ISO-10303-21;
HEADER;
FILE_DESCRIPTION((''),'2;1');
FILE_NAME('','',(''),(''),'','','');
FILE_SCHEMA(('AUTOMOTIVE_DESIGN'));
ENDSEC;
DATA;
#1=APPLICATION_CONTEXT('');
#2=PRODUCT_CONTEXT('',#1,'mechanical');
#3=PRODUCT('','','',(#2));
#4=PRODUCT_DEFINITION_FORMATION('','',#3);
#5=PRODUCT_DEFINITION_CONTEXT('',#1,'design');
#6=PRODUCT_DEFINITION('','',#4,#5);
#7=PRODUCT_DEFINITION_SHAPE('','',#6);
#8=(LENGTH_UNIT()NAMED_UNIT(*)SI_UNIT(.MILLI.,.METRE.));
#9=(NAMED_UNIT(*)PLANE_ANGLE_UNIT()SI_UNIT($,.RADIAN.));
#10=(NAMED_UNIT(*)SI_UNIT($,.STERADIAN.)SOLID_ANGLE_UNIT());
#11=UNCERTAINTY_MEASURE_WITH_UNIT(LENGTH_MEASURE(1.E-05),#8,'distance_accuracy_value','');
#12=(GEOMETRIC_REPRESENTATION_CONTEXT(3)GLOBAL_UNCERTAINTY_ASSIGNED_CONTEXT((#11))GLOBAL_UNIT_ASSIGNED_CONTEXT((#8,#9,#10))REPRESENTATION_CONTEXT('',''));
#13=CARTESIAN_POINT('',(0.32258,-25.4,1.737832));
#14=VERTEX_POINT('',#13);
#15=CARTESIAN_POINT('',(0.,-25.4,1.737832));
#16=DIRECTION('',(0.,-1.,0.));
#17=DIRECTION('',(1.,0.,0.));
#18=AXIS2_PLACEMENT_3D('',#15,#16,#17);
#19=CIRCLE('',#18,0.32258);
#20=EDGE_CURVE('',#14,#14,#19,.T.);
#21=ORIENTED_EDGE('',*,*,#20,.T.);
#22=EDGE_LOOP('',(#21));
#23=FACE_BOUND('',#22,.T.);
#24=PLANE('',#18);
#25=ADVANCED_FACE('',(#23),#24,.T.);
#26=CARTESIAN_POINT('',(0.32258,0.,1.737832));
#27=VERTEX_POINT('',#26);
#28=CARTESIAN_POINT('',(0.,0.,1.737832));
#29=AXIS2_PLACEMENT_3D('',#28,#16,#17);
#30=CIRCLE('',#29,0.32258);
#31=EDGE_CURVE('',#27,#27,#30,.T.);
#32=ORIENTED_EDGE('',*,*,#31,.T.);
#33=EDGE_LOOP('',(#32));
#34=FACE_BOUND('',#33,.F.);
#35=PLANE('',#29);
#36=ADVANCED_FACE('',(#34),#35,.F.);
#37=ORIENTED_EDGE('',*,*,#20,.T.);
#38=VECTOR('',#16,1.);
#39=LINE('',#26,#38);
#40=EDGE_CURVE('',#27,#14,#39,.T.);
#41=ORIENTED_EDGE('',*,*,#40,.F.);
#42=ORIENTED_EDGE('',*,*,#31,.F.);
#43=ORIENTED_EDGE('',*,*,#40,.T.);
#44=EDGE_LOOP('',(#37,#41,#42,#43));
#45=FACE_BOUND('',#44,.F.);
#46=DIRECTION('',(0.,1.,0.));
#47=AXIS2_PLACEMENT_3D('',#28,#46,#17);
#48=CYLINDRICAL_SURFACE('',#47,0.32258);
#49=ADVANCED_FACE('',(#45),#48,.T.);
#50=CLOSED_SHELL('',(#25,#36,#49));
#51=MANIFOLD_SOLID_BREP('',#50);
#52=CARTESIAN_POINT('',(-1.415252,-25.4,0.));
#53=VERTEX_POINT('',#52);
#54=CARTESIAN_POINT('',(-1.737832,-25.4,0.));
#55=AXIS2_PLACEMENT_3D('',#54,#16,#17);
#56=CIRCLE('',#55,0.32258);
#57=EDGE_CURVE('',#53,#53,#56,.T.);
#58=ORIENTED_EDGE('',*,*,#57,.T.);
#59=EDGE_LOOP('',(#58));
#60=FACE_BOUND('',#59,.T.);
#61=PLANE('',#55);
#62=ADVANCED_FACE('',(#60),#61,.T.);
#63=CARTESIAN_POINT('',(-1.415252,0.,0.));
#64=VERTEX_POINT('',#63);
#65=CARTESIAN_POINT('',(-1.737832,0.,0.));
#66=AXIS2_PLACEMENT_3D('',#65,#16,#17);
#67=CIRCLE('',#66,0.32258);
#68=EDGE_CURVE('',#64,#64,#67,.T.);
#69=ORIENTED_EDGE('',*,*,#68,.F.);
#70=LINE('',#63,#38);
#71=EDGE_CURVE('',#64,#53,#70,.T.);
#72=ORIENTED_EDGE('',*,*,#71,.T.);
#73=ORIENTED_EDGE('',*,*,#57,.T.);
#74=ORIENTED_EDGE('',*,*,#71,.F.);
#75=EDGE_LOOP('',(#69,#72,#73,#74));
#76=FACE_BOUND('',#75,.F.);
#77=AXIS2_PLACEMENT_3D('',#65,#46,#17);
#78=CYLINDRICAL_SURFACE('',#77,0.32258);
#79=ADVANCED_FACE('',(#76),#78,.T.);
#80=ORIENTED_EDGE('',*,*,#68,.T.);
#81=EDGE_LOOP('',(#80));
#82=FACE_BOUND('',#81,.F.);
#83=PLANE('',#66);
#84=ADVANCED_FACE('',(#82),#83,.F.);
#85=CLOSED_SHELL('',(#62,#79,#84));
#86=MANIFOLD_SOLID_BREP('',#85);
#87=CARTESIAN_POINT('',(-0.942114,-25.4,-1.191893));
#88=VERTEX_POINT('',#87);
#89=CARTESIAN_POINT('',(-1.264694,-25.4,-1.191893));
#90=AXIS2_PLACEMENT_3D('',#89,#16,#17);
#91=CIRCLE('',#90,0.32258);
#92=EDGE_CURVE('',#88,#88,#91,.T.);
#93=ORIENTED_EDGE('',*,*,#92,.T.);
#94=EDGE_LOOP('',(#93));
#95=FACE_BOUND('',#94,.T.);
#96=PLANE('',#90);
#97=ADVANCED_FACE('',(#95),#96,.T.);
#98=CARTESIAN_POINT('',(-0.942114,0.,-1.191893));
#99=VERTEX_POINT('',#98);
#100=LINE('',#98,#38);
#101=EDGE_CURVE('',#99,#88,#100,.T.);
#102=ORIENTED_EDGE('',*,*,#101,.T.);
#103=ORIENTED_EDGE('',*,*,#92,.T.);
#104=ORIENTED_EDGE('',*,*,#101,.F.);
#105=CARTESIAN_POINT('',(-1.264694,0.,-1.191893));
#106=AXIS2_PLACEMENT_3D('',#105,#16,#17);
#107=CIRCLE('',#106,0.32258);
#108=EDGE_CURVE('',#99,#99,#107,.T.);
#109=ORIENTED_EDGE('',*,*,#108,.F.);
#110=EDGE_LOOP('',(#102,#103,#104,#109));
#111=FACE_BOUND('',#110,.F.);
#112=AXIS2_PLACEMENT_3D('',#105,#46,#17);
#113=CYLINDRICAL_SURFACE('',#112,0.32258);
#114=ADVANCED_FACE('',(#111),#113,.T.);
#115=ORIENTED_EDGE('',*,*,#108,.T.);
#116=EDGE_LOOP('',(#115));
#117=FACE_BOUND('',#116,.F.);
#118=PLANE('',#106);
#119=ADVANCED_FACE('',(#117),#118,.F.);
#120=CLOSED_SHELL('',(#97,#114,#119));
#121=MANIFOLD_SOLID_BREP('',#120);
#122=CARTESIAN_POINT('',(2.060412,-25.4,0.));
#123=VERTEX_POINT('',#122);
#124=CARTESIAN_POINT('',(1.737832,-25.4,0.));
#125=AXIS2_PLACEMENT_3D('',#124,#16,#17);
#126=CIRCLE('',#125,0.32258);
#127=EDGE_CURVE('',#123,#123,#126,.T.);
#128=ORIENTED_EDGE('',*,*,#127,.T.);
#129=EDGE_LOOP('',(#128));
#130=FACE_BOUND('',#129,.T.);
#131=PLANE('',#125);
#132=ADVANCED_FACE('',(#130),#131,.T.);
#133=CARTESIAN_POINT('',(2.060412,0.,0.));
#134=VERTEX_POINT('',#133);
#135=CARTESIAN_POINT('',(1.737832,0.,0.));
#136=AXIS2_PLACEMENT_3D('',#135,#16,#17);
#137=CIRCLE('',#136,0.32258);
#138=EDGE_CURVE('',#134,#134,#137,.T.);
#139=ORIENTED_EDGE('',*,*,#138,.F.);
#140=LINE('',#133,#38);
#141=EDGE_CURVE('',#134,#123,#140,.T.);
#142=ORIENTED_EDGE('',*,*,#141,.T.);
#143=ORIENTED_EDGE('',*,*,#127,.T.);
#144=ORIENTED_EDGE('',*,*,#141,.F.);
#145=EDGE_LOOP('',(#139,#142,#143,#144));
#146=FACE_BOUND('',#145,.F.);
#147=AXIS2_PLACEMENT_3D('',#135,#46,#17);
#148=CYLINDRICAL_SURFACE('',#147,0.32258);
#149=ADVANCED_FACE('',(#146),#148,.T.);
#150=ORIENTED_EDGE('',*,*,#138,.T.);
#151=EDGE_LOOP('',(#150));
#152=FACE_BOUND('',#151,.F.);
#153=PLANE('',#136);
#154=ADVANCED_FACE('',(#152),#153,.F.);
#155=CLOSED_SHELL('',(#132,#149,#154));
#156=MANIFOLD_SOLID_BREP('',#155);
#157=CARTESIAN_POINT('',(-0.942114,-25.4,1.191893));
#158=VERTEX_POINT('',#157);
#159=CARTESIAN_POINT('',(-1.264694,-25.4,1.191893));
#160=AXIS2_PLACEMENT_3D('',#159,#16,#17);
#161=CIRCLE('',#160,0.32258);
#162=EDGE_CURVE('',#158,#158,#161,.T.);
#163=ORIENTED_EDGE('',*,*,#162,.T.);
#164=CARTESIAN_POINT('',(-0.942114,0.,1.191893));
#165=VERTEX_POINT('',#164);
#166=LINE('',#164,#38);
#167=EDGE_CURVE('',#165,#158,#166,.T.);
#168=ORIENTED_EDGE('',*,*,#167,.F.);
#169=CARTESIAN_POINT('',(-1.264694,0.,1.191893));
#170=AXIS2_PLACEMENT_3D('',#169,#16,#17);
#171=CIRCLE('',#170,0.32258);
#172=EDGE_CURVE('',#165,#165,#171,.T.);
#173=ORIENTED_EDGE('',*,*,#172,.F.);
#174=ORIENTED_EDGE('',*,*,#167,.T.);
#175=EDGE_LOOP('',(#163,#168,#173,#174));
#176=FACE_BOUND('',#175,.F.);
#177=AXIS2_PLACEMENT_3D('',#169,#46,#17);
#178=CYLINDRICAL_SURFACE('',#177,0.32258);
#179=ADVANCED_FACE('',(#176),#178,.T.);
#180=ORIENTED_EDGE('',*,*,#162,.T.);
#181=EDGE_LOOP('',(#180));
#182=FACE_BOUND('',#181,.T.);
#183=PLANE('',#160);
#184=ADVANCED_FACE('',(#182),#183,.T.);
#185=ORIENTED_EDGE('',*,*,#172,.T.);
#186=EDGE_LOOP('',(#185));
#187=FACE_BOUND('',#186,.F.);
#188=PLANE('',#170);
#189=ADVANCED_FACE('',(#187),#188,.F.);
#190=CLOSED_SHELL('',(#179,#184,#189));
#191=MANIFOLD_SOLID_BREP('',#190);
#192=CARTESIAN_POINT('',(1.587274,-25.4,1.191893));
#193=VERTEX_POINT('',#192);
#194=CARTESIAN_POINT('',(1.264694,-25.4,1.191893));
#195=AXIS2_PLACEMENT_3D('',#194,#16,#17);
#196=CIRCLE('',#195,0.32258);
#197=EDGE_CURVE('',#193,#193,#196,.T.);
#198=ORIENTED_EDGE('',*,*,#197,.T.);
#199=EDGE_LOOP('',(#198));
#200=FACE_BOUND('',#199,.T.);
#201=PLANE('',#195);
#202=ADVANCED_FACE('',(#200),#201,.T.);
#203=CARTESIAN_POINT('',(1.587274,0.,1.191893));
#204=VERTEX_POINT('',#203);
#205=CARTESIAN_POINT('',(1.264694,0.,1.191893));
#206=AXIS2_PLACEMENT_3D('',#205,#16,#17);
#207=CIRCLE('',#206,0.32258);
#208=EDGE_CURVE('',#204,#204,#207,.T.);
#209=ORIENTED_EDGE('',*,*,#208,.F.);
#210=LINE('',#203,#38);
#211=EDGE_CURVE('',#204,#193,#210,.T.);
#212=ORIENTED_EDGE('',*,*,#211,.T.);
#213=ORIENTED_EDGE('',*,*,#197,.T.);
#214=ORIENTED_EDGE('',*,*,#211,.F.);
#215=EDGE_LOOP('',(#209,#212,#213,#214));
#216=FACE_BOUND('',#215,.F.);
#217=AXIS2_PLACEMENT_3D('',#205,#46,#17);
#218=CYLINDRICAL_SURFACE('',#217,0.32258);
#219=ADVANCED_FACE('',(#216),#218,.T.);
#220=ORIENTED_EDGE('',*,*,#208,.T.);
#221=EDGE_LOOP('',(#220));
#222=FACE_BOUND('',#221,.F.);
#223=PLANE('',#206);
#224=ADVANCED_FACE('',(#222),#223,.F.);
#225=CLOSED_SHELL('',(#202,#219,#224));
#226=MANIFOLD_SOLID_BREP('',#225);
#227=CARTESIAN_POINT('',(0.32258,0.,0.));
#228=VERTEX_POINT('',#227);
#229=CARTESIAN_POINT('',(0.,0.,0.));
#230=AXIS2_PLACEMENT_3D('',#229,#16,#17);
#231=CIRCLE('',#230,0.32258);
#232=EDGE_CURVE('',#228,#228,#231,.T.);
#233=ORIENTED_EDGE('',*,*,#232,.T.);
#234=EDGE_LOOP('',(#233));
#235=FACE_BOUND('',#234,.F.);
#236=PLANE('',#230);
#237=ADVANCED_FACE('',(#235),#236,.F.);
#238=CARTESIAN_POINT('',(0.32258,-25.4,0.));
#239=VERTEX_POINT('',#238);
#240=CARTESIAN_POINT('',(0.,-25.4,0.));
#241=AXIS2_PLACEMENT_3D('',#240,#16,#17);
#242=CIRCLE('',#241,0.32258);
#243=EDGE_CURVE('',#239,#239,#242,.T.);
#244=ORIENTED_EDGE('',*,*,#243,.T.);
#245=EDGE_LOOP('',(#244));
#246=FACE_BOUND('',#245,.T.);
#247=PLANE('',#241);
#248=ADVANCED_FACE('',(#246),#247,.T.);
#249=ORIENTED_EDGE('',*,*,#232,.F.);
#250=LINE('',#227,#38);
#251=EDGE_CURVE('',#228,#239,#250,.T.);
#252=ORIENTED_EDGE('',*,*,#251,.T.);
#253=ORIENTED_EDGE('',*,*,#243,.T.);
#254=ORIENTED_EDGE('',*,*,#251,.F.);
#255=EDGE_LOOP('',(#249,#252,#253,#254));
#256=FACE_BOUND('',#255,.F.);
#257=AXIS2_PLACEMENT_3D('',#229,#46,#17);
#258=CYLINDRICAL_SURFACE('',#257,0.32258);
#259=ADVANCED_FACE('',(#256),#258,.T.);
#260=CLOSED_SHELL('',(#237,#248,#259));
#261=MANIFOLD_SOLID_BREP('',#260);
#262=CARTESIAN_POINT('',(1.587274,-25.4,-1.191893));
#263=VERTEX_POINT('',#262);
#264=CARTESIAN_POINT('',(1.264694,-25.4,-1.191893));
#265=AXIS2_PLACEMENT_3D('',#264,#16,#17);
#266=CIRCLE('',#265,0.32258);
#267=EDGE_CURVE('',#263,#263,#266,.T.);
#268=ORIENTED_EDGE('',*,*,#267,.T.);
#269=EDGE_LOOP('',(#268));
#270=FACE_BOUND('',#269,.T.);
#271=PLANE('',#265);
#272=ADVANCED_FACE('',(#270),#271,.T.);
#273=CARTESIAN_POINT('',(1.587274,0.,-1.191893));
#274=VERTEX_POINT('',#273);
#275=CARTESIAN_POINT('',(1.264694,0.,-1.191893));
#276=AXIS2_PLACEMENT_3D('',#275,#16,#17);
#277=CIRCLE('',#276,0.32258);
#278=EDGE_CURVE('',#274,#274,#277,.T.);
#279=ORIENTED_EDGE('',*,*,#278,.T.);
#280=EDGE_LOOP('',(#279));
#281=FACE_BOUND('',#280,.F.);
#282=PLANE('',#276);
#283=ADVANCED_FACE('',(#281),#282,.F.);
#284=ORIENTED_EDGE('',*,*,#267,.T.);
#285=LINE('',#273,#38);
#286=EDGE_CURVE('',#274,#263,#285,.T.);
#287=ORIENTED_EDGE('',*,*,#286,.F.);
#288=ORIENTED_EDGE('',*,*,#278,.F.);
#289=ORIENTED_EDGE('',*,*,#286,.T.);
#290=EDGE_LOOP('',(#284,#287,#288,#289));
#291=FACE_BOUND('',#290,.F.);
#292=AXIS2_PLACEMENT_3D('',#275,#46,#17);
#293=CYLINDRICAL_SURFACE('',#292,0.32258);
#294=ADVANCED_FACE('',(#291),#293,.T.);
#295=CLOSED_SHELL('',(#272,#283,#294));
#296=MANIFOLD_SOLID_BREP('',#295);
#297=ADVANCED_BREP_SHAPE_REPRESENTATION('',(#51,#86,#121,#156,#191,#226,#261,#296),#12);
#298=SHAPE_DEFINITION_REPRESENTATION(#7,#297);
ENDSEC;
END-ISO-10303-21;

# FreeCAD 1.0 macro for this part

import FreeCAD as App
import Part
import Sketcher
from FreeCAD import Vector
Q = App.Units.Quantity

doc = App.newDocument("Part")
body = doc.addObject("PartDesign::Body", "Body")
body.AllowCompound = True

# Sketch on XZ plane
sketch1 = doc.addObject("Sketcher::SketchObject", "Sketch")
body.addObject(sketch1)
sketch1.AttachmentSupport = (doc.XZ_Plane, [""])
sketch1.MapMode = "FlatFace"
sketch1.addGeometry(Part.Circle(Vector(1.737832, 0, 0), Vector(0, 0, 1), 0.32258), False)
sketch1.addGeometry(Part.Circle(Vector(1.264694, -1.191893, 0), Vector(0, 0, 1), 0.32258), False)
sketch1.addGeometry(Part.Circle(Vector(1.264694, 1.191893, 0), Vector(0, 0, 1), 0.32258), False)
sketch1.addGeometry(Part.Circle(Vector(0, 0, 0), Vector(0, 0, 1), 0.32258), False)
sketch1.addGeometry(Part.Circle(Vector(-1.264694, -1.191893, 0), Vector(0, 0, 1), 0.32258), False)
sketch1.addGeometry(Part.Circle(Vector(-1.737832, 0, 0), Vector(0, 0, 1), 0.32258), False)
sketch1.addGeometry(Part.Circle(Vector(-1.264694, 1.191893, 0), Vector(0, 0, 1), 0.32258), False)
sketch1.addGeometry(Part.Circle(Vector(0, 1.737832, 0), Vector(0, 0, 1), 0.32258), False)
sketch1.addConstraint(Sketcher.Constraint("Coincident", 3, 3, -1, 1))
sketch1.addConstraint(Sketcher.Constraint("Equal", 0, 1))
sketch1.addConstraint(Sketcher.Constraint("Equal", 1, 2))
sketch1.addConstraint(Sketcher.Constraint("Equal", 2, 3))
sketch1.addConstraint(Sketcher.Constraint("Equal", 3, 4))
sketch1.addConstraint(Sketcher.Constraint("Equal", 4, 5))
sketch1.addConstraint(Sketcher.Constraint("Equal", 5, 6))
sketch1.addConstraint(Sketcher.Constraint("Equal", 6, 7))
sketch1.addConstraint(Sketcher.Constraint("Symmetric", 2, 3, 4, 3, -1, 1))
sketch1.addConstraint(Sketcher.Constraint("Symmetric", 0, 3, 5, 3, -1, 1))
sketch1.addConstraint(Sketcher.Constraint("Symmetric", 1, 3, 6, 3, -1, 1))
sketch1.addConstraint(Sketcher.Constraint("Symmetric", 1, 3, 4, 3, -2))
sketch1.addConstraint(Sketcher.Constraint("PointOnObject", 0, 3, -1))
sketch1.addConstraint(Sketcher.Constraint("PointOnObject", 7, 3, -2))
sketch1.addConstraint(Sketcher.Constraint("Diameter", 0, Q("0.0254 in")))
sketch1.addConstraint(Sketcher.Constraint("DistanceX", 1, 3, 0, 3, 0.473138))
sketch1.addConstraint(Sketcher.Constraint("DistanceX", 4, 3, 1, 3, 2.529388))
sketch1.addConstraint(Sketcher.Constraint("DistanceY", 2, 3, 7, 3, 0.545939))
sketch1.addConstraint(Sketcher.Constraint("DistanceY", 1, 3, -1, 1, 1.191893))
pad1 = doc.addObject("PartDesign::Pad", "Pad")
body.addObject(pad1)
pad1.Profile = sketch1
pad1.Length = Q("1 in")

doc.recompute()
